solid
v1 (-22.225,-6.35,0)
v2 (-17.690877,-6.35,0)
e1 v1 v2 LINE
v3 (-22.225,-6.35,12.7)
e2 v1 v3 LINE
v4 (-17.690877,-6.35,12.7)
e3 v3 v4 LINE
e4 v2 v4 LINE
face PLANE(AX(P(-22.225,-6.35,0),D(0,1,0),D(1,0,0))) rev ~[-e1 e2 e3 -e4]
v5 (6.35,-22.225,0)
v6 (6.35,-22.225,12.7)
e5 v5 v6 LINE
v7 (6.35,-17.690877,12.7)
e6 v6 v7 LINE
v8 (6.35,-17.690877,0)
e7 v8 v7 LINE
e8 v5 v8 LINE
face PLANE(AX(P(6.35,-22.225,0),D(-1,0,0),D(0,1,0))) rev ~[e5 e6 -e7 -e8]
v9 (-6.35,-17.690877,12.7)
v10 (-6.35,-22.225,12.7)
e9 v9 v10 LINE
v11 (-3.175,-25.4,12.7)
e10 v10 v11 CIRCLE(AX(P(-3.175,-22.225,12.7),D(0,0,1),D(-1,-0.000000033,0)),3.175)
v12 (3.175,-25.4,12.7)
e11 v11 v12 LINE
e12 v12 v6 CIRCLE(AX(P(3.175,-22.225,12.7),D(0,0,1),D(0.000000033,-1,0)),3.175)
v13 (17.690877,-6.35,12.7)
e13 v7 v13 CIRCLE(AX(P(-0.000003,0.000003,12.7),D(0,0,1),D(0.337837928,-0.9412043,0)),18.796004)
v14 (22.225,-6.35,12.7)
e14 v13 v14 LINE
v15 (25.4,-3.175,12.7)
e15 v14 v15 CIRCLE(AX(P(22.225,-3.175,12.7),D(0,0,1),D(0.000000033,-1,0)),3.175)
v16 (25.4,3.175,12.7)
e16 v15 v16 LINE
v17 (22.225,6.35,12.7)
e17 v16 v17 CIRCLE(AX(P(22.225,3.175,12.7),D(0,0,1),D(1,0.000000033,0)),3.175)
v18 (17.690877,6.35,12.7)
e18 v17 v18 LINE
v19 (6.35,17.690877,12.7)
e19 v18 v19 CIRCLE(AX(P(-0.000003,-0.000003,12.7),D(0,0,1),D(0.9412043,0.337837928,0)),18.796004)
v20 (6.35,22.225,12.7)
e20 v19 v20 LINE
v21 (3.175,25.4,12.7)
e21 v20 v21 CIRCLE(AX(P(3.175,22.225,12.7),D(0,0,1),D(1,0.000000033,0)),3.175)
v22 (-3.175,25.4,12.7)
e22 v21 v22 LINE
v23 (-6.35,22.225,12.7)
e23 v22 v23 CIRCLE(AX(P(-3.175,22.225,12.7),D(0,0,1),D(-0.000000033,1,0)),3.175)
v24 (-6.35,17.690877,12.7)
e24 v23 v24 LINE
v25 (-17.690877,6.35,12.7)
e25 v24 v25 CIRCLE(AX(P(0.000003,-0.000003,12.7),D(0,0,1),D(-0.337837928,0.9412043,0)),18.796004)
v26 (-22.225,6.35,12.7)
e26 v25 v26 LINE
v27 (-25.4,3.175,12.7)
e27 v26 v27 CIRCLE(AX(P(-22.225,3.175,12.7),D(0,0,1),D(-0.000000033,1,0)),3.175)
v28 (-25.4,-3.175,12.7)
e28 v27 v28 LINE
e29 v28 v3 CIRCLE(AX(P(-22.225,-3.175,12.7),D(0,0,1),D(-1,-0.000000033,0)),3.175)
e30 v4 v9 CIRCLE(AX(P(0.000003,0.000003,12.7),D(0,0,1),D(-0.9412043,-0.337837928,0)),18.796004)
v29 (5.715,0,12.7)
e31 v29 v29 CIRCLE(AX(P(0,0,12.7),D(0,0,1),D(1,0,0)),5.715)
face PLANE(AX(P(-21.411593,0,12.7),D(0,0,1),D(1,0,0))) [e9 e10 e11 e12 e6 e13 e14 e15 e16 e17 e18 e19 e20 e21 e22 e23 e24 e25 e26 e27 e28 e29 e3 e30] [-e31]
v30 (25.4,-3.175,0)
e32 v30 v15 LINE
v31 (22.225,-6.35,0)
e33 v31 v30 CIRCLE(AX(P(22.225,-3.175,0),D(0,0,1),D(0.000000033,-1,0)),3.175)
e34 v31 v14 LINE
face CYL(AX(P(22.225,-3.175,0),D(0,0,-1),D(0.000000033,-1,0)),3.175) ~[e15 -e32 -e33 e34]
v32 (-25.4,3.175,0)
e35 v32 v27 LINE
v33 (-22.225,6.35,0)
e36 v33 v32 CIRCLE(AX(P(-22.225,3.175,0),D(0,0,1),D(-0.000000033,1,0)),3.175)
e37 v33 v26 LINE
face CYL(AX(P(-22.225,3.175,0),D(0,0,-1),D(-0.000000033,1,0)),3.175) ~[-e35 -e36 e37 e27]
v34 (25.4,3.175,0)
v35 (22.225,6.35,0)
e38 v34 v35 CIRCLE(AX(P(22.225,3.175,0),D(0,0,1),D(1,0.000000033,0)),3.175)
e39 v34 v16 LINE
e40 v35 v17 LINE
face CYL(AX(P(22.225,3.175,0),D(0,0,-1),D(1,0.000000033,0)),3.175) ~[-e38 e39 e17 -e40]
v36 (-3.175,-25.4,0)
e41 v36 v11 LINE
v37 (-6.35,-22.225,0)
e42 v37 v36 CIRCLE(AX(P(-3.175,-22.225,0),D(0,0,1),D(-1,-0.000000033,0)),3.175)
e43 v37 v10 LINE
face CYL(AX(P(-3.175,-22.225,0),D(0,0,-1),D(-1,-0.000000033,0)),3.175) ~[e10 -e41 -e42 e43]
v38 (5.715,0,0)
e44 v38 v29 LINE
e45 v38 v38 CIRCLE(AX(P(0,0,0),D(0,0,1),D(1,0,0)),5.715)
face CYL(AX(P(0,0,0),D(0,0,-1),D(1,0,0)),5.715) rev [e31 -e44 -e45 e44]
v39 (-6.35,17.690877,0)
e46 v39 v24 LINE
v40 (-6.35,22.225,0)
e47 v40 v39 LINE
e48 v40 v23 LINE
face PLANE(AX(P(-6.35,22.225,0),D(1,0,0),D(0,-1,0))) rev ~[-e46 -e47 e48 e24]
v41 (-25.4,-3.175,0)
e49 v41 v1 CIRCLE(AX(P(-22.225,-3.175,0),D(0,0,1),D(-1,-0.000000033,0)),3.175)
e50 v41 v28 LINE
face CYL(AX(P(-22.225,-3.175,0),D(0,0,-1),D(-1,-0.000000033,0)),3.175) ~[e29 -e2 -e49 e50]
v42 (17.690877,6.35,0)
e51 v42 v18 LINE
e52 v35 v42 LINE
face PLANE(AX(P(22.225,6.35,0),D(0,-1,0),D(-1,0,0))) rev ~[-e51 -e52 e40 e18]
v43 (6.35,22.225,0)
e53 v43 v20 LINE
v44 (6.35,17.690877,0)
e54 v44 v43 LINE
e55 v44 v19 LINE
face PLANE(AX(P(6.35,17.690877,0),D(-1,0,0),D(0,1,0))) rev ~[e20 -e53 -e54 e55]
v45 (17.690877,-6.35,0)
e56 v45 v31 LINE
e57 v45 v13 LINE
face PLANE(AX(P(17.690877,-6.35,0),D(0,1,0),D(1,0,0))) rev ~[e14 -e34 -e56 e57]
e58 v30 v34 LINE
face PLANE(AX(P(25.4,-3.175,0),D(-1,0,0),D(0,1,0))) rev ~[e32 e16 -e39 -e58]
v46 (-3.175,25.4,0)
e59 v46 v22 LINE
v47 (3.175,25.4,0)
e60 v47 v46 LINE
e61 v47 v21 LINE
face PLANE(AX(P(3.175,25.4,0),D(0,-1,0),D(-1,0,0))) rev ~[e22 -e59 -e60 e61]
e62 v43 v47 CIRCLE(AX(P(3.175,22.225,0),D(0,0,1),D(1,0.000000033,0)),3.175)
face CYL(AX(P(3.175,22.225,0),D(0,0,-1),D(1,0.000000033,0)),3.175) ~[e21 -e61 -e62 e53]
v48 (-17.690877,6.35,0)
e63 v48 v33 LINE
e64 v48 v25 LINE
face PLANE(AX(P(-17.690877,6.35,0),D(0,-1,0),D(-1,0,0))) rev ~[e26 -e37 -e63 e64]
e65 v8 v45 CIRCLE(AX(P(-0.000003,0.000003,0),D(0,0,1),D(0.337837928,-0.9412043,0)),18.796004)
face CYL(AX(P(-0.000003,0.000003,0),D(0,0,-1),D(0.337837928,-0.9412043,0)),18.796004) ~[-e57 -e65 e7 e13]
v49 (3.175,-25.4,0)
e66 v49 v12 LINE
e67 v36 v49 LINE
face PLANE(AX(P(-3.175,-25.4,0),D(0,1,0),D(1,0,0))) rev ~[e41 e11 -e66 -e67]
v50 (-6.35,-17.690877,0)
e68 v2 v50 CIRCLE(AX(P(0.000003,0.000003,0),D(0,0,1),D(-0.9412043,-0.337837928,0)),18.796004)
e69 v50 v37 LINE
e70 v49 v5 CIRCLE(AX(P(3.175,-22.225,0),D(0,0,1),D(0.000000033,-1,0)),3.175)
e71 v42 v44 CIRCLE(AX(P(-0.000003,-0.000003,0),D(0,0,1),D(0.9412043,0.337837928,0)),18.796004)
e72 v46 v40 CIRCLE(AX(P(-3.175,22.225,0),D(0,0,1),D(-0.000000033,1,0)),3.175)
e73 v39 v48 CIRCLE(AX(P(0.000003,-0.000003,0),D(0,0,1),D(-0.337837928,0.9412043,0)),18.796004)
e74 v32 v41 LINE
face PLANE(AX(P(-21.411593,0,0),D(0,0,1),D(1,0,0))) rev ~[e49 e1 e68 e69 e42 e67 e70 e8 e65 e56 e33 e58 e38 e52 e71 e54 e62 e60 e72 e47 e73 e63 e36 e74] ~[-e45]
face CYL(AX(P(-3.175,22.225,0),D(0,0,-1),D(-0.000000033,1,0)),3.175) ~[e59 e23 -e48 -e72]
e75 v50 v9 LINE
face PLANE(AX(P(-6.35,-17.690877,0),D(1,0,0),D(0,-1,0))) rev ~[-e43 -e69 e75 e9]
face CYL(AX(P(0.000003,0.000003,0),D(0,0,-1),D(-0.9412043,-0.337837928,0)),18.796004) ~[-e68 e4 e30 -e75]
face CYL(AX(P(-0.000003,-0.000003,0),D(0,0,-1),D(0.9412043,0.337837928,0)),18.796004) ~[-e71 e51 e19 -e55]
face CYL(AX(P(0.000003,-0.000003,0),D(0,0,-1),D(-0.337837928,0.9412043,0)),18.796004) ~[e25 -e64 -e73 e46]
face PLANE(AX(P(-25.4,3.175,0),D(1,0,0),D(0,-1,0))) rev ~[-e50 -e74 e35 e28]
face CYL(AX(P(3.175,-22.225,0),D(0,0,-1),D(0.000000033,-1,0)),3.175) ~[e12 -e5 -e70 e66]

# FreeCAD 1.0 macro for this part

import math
import FreeCAD as App
import Part
import Sketcher

V = App.Vector
Q = App.Units.Quantity

doc = App.newDocument("Part")
body = doc.addObject("PartDesign::Body", "Body")

sketch1 = body.newObject("Sketcher::SketchObject", "Sketch")
sketch1.AttachmentSupport = (doc.getObject("XY_Plane"), [""])
sketch1.MapMode = "FlatFace"
sketch1.addGeometry([
    Part.LineSegment(V(-17.7, 6.3, 0), V(-22.2, 6.3, 0)),
    Part.ArcOfCircle(Part.Circle(V(-22.2, 3.2, 0), V(0, 0, 1), 3.2), math.radians(90), math.radians(180)),
    Part.LineSegment(V(-25.4, 3.2, 0), V(-25.4, -3.2, 0)),
    Part.ArcOfCircle(Part.Circle(V(-22.2, -3.2, 0), V(0, 0, 1), 3.2), math.radians(-180), math.radians(-90)),
    Part.LineSegment(V(-22.2, -6.3, 0), V(-17.7, -6.3, 0)),
    Part.ArcOfCircle(Part.Circle(V(0, 0, 0), V(0, 0, 1), 18.8), math.radians(-160), math.radians(-110)),
    Part.LineSegment(V(-6.3, -17.7, 0), V(-6.3, -22.2, 0)),
    Part.ArcOfCircle(Part.Circle(V(-3.2, -22.2, 0), V(0, 0, 1), 3.2), math.radians(-180), math.radians(-90)),
    Part.LineSegment(V(-3.2, -25.4, 0), V(3.2, -25.4, 0)),
    Part.ArcOfCircle(Part.Circle(V(3.2, -22.2, 0), V(0, 0, 1), 3.2), math.radians(-90), math.radians(0)),
    Part.LineSegment(V(6.3, -22.2, 0), V(6.3, -17.7, 0)),
    Part.ArcOfCircle(Part.Circle(V(0, 0, 0), V(0, 0, 1), 18.8), math.radians(-70), math.radians(-20)),
    Part.LineSegment(V(17.7, -6.3, 0), V(22.2, -6.3, 0)),
    Part.ArcOfCircle(Part.Circle(V(22.2, -3.2, 0), V(0, 0, 1), 3.2), math.radians(-90), math.radians(0)),
    Part.LineSegment(V(25.4, -3.2, 0), V(25.4, 3.2, 0)),
    Part.ArcOfCircle(Part.Circle(V(22.2, 3.2, 0), V(0, 0, 1), 3.2), math.radians(0), math.radians(90)),
    Part.LineSegment(V(22.2, 6.3, 0), V(17.7, 6.3, 0)),
    Part.ArcOfCircle(Part.Circle(V(0, 0, 0), V(0, 0, 1), 18.8), math.radians(20), math.radians(70)),
    Part.LineSegment(V(6.3, 17.7, 0), V(6.3, 22.2, 0)),
    Part.ArcOfCircle(Part.Circle(V(3.2, 22.2, 0), V(0, 0, 1), 3.2), math.radians(0), math.radians(90)),
    Part.LineSegment(V(3.2, 25.4, 0), V(-3.2, 25.4, 0)),
    Part.ArcOfCircle(Part.Circle(V(-3.2, 22.2, 0), V(0, 0, 1), 3.2), math.radians(90), math.radians(180)),
    Part.LineSegment(V(-6.3, 22.2, 0), V(-6.3, 17.7, 0)),
    Part.ArcOfCircle(Part.Circle(V(0, 0, 0), V(0, 0, 1), 18.8), math.radians(110), math.radians(160)),
    Part.Circle(V(0, 0, 0), V(0, 0, 1), 5.7),
], False)
sketch1.addConstraint([
    Sketcher.Constraint("Tangent", 0, 2, 1, 1),
    Sketcher.Constraint("Tangent", 1, 2, 2, 1),
    Sketcher.Constraint("Tangent", 2, 2, 3, 1),
    Sketcher.Constraint("Tangent", 3, 2, 4, 1),
    Sketcher.Constraint("Coincident", 4, 2, 5, 1),
    Sketcher.Constraint("Coincident", 5, 2, 6, 1),
    Sketcher.Constraint("Tangent", 6, 2, 7, 1),
    Sketcher.Constraint("Tangent", 7, 2, 8, 1),
    Sketcher.Constraint("Tangent", 8, 2, 9, 1),
    Sketcher.Constraint("Tangent", 9, 2, 10, 1),
    Sketcher.Constraint("Coincident", 10, 2, 11, 1),
    Sketcher.Constraint("Coincident", 11, 2, 12, 1),
    Sketcher.Constraint("Tangent", 12, 2, 13, 1),
    Sketcher.Constraint("Tangent", 13, 2, 14, 1),
    Sketcher.Constraint("Tangent", 14, 2, 15, 1),
    Sketcher.Constraint("Tangent", 15, 2, 16, 1),
    Sketcher.Constraint("Coincident", 16, 2, 17, 1),
    Sketcher.Constraint("Coincident", 17, 2, 18, 1),
    Sketcher.Constraint("Tangent", 18, 2, 19, 1),
    Sketcher.Constraint("Tangent", 19, 2, 20, 1),
    Sketcher.Constraint("Tangent", 20, 2, 21, 1),
    Sketcher.Constraint("Tangent", 21, 2, 22, 1),
    Sketcher.Constraint("Coincident", 22, 2, 23, 1),
    Sketcher.Constraint("Coincident", 23, 2, 0, 1),
    Sketcher.Constraint("Horizontal", 0),
    Sketcher.Constraint("Vertical", 2),
    Sketcher.Constraint("Horizontal", 4),
    Sketcher.Constraint("Vertical", 6),
    Sketcher.Constraint("Horizontal", 8),
    Sketcher.Constraint("Vertical", 10),
    Sketcher.Constraint("Horizontal", 12),
    Sketcher.Constraint("Vertical", 14),
    Sketcher.Constraint("Horizontal", 16),
    Sketcher.Constraint("Vertical", 18),
    Sketcher.Constraint("Horizontal", 20),
    Sketcher.Constraint("Vertical", 22),
    Sketcher.Constraint("Coincident", 5, 3, -1, 1),
    Sketcher.Constraint("Coincident", 11, 3, -1, 1),
    Sketcher.Constraint("Coincident", 17, 3, -1, 1),
    Sketcher.Constraint("Coincident", 23, 3, -1, 1),
    Sketcher.Constraint("Coincident", 24, 3, -1, 1),
    Sketcher.Constraint("Equal", 1, 3),
    Sketcher.Constraint("Equal", 3, 7),
    Sketcher.Constraint("Equal", 7, 9),
    Sketcher.Constraint("Equal", 5, 11),
    Sketcher.Constraint("Equal", 9, 13),
    Sketcher.Constraint("Equal", 13, 15),
    Sketcher.Constraint("Equal", 11, 17),
    Sketcher.Constraint("Equal", 15, 19),
    Sketcher.Constraint("Equal", 19, 21),
    Sketcher.Constraint("Equal", 17, 23),
    Sketcher.Constraint("Symmetric", 1, 3, 13, 3, -1, 1),
    Sketcher.Constraint("Symmetric", 7, 3, 19, 3, -1, 1),
    Sketcher.Constraint("Horizontal", 3, 3, 13, 3),
    Sketcher.Constraint("Horizontal", 1, 3, 15, 3),
    Sketcher.Constraint("Horizontal", 5, 2, 10, 2),
    Sketcher.Constraint("Horizontal", 17, 2, 22, 2),
    Sketcher.Constraint("Equal", 20, 2),
    Sketcher.Constraint("Equal", 16, 6),
    Sketcher.Constraint("Diameter", 24, Q("0.45 in")),
    Sketcher.Constraint("Radius", 5, Q("0.7400002 in")),
    Sketcher.Constraint("DistanceX", 1, 2, -1, 1, Q("1 in")),
    Sketcher.Constraint("Radius", 1, Q("0.125 in")),
    Sketcher.Constraint("DistanceY", 7, 3, 1, 3, Q("1 in")),
])
pad1 = body.newObject("PartDesign::Pad", "Pad")
pad1.Profile = sketch1
pad1.Length = Q("0.5 in")

doc.recompute()
